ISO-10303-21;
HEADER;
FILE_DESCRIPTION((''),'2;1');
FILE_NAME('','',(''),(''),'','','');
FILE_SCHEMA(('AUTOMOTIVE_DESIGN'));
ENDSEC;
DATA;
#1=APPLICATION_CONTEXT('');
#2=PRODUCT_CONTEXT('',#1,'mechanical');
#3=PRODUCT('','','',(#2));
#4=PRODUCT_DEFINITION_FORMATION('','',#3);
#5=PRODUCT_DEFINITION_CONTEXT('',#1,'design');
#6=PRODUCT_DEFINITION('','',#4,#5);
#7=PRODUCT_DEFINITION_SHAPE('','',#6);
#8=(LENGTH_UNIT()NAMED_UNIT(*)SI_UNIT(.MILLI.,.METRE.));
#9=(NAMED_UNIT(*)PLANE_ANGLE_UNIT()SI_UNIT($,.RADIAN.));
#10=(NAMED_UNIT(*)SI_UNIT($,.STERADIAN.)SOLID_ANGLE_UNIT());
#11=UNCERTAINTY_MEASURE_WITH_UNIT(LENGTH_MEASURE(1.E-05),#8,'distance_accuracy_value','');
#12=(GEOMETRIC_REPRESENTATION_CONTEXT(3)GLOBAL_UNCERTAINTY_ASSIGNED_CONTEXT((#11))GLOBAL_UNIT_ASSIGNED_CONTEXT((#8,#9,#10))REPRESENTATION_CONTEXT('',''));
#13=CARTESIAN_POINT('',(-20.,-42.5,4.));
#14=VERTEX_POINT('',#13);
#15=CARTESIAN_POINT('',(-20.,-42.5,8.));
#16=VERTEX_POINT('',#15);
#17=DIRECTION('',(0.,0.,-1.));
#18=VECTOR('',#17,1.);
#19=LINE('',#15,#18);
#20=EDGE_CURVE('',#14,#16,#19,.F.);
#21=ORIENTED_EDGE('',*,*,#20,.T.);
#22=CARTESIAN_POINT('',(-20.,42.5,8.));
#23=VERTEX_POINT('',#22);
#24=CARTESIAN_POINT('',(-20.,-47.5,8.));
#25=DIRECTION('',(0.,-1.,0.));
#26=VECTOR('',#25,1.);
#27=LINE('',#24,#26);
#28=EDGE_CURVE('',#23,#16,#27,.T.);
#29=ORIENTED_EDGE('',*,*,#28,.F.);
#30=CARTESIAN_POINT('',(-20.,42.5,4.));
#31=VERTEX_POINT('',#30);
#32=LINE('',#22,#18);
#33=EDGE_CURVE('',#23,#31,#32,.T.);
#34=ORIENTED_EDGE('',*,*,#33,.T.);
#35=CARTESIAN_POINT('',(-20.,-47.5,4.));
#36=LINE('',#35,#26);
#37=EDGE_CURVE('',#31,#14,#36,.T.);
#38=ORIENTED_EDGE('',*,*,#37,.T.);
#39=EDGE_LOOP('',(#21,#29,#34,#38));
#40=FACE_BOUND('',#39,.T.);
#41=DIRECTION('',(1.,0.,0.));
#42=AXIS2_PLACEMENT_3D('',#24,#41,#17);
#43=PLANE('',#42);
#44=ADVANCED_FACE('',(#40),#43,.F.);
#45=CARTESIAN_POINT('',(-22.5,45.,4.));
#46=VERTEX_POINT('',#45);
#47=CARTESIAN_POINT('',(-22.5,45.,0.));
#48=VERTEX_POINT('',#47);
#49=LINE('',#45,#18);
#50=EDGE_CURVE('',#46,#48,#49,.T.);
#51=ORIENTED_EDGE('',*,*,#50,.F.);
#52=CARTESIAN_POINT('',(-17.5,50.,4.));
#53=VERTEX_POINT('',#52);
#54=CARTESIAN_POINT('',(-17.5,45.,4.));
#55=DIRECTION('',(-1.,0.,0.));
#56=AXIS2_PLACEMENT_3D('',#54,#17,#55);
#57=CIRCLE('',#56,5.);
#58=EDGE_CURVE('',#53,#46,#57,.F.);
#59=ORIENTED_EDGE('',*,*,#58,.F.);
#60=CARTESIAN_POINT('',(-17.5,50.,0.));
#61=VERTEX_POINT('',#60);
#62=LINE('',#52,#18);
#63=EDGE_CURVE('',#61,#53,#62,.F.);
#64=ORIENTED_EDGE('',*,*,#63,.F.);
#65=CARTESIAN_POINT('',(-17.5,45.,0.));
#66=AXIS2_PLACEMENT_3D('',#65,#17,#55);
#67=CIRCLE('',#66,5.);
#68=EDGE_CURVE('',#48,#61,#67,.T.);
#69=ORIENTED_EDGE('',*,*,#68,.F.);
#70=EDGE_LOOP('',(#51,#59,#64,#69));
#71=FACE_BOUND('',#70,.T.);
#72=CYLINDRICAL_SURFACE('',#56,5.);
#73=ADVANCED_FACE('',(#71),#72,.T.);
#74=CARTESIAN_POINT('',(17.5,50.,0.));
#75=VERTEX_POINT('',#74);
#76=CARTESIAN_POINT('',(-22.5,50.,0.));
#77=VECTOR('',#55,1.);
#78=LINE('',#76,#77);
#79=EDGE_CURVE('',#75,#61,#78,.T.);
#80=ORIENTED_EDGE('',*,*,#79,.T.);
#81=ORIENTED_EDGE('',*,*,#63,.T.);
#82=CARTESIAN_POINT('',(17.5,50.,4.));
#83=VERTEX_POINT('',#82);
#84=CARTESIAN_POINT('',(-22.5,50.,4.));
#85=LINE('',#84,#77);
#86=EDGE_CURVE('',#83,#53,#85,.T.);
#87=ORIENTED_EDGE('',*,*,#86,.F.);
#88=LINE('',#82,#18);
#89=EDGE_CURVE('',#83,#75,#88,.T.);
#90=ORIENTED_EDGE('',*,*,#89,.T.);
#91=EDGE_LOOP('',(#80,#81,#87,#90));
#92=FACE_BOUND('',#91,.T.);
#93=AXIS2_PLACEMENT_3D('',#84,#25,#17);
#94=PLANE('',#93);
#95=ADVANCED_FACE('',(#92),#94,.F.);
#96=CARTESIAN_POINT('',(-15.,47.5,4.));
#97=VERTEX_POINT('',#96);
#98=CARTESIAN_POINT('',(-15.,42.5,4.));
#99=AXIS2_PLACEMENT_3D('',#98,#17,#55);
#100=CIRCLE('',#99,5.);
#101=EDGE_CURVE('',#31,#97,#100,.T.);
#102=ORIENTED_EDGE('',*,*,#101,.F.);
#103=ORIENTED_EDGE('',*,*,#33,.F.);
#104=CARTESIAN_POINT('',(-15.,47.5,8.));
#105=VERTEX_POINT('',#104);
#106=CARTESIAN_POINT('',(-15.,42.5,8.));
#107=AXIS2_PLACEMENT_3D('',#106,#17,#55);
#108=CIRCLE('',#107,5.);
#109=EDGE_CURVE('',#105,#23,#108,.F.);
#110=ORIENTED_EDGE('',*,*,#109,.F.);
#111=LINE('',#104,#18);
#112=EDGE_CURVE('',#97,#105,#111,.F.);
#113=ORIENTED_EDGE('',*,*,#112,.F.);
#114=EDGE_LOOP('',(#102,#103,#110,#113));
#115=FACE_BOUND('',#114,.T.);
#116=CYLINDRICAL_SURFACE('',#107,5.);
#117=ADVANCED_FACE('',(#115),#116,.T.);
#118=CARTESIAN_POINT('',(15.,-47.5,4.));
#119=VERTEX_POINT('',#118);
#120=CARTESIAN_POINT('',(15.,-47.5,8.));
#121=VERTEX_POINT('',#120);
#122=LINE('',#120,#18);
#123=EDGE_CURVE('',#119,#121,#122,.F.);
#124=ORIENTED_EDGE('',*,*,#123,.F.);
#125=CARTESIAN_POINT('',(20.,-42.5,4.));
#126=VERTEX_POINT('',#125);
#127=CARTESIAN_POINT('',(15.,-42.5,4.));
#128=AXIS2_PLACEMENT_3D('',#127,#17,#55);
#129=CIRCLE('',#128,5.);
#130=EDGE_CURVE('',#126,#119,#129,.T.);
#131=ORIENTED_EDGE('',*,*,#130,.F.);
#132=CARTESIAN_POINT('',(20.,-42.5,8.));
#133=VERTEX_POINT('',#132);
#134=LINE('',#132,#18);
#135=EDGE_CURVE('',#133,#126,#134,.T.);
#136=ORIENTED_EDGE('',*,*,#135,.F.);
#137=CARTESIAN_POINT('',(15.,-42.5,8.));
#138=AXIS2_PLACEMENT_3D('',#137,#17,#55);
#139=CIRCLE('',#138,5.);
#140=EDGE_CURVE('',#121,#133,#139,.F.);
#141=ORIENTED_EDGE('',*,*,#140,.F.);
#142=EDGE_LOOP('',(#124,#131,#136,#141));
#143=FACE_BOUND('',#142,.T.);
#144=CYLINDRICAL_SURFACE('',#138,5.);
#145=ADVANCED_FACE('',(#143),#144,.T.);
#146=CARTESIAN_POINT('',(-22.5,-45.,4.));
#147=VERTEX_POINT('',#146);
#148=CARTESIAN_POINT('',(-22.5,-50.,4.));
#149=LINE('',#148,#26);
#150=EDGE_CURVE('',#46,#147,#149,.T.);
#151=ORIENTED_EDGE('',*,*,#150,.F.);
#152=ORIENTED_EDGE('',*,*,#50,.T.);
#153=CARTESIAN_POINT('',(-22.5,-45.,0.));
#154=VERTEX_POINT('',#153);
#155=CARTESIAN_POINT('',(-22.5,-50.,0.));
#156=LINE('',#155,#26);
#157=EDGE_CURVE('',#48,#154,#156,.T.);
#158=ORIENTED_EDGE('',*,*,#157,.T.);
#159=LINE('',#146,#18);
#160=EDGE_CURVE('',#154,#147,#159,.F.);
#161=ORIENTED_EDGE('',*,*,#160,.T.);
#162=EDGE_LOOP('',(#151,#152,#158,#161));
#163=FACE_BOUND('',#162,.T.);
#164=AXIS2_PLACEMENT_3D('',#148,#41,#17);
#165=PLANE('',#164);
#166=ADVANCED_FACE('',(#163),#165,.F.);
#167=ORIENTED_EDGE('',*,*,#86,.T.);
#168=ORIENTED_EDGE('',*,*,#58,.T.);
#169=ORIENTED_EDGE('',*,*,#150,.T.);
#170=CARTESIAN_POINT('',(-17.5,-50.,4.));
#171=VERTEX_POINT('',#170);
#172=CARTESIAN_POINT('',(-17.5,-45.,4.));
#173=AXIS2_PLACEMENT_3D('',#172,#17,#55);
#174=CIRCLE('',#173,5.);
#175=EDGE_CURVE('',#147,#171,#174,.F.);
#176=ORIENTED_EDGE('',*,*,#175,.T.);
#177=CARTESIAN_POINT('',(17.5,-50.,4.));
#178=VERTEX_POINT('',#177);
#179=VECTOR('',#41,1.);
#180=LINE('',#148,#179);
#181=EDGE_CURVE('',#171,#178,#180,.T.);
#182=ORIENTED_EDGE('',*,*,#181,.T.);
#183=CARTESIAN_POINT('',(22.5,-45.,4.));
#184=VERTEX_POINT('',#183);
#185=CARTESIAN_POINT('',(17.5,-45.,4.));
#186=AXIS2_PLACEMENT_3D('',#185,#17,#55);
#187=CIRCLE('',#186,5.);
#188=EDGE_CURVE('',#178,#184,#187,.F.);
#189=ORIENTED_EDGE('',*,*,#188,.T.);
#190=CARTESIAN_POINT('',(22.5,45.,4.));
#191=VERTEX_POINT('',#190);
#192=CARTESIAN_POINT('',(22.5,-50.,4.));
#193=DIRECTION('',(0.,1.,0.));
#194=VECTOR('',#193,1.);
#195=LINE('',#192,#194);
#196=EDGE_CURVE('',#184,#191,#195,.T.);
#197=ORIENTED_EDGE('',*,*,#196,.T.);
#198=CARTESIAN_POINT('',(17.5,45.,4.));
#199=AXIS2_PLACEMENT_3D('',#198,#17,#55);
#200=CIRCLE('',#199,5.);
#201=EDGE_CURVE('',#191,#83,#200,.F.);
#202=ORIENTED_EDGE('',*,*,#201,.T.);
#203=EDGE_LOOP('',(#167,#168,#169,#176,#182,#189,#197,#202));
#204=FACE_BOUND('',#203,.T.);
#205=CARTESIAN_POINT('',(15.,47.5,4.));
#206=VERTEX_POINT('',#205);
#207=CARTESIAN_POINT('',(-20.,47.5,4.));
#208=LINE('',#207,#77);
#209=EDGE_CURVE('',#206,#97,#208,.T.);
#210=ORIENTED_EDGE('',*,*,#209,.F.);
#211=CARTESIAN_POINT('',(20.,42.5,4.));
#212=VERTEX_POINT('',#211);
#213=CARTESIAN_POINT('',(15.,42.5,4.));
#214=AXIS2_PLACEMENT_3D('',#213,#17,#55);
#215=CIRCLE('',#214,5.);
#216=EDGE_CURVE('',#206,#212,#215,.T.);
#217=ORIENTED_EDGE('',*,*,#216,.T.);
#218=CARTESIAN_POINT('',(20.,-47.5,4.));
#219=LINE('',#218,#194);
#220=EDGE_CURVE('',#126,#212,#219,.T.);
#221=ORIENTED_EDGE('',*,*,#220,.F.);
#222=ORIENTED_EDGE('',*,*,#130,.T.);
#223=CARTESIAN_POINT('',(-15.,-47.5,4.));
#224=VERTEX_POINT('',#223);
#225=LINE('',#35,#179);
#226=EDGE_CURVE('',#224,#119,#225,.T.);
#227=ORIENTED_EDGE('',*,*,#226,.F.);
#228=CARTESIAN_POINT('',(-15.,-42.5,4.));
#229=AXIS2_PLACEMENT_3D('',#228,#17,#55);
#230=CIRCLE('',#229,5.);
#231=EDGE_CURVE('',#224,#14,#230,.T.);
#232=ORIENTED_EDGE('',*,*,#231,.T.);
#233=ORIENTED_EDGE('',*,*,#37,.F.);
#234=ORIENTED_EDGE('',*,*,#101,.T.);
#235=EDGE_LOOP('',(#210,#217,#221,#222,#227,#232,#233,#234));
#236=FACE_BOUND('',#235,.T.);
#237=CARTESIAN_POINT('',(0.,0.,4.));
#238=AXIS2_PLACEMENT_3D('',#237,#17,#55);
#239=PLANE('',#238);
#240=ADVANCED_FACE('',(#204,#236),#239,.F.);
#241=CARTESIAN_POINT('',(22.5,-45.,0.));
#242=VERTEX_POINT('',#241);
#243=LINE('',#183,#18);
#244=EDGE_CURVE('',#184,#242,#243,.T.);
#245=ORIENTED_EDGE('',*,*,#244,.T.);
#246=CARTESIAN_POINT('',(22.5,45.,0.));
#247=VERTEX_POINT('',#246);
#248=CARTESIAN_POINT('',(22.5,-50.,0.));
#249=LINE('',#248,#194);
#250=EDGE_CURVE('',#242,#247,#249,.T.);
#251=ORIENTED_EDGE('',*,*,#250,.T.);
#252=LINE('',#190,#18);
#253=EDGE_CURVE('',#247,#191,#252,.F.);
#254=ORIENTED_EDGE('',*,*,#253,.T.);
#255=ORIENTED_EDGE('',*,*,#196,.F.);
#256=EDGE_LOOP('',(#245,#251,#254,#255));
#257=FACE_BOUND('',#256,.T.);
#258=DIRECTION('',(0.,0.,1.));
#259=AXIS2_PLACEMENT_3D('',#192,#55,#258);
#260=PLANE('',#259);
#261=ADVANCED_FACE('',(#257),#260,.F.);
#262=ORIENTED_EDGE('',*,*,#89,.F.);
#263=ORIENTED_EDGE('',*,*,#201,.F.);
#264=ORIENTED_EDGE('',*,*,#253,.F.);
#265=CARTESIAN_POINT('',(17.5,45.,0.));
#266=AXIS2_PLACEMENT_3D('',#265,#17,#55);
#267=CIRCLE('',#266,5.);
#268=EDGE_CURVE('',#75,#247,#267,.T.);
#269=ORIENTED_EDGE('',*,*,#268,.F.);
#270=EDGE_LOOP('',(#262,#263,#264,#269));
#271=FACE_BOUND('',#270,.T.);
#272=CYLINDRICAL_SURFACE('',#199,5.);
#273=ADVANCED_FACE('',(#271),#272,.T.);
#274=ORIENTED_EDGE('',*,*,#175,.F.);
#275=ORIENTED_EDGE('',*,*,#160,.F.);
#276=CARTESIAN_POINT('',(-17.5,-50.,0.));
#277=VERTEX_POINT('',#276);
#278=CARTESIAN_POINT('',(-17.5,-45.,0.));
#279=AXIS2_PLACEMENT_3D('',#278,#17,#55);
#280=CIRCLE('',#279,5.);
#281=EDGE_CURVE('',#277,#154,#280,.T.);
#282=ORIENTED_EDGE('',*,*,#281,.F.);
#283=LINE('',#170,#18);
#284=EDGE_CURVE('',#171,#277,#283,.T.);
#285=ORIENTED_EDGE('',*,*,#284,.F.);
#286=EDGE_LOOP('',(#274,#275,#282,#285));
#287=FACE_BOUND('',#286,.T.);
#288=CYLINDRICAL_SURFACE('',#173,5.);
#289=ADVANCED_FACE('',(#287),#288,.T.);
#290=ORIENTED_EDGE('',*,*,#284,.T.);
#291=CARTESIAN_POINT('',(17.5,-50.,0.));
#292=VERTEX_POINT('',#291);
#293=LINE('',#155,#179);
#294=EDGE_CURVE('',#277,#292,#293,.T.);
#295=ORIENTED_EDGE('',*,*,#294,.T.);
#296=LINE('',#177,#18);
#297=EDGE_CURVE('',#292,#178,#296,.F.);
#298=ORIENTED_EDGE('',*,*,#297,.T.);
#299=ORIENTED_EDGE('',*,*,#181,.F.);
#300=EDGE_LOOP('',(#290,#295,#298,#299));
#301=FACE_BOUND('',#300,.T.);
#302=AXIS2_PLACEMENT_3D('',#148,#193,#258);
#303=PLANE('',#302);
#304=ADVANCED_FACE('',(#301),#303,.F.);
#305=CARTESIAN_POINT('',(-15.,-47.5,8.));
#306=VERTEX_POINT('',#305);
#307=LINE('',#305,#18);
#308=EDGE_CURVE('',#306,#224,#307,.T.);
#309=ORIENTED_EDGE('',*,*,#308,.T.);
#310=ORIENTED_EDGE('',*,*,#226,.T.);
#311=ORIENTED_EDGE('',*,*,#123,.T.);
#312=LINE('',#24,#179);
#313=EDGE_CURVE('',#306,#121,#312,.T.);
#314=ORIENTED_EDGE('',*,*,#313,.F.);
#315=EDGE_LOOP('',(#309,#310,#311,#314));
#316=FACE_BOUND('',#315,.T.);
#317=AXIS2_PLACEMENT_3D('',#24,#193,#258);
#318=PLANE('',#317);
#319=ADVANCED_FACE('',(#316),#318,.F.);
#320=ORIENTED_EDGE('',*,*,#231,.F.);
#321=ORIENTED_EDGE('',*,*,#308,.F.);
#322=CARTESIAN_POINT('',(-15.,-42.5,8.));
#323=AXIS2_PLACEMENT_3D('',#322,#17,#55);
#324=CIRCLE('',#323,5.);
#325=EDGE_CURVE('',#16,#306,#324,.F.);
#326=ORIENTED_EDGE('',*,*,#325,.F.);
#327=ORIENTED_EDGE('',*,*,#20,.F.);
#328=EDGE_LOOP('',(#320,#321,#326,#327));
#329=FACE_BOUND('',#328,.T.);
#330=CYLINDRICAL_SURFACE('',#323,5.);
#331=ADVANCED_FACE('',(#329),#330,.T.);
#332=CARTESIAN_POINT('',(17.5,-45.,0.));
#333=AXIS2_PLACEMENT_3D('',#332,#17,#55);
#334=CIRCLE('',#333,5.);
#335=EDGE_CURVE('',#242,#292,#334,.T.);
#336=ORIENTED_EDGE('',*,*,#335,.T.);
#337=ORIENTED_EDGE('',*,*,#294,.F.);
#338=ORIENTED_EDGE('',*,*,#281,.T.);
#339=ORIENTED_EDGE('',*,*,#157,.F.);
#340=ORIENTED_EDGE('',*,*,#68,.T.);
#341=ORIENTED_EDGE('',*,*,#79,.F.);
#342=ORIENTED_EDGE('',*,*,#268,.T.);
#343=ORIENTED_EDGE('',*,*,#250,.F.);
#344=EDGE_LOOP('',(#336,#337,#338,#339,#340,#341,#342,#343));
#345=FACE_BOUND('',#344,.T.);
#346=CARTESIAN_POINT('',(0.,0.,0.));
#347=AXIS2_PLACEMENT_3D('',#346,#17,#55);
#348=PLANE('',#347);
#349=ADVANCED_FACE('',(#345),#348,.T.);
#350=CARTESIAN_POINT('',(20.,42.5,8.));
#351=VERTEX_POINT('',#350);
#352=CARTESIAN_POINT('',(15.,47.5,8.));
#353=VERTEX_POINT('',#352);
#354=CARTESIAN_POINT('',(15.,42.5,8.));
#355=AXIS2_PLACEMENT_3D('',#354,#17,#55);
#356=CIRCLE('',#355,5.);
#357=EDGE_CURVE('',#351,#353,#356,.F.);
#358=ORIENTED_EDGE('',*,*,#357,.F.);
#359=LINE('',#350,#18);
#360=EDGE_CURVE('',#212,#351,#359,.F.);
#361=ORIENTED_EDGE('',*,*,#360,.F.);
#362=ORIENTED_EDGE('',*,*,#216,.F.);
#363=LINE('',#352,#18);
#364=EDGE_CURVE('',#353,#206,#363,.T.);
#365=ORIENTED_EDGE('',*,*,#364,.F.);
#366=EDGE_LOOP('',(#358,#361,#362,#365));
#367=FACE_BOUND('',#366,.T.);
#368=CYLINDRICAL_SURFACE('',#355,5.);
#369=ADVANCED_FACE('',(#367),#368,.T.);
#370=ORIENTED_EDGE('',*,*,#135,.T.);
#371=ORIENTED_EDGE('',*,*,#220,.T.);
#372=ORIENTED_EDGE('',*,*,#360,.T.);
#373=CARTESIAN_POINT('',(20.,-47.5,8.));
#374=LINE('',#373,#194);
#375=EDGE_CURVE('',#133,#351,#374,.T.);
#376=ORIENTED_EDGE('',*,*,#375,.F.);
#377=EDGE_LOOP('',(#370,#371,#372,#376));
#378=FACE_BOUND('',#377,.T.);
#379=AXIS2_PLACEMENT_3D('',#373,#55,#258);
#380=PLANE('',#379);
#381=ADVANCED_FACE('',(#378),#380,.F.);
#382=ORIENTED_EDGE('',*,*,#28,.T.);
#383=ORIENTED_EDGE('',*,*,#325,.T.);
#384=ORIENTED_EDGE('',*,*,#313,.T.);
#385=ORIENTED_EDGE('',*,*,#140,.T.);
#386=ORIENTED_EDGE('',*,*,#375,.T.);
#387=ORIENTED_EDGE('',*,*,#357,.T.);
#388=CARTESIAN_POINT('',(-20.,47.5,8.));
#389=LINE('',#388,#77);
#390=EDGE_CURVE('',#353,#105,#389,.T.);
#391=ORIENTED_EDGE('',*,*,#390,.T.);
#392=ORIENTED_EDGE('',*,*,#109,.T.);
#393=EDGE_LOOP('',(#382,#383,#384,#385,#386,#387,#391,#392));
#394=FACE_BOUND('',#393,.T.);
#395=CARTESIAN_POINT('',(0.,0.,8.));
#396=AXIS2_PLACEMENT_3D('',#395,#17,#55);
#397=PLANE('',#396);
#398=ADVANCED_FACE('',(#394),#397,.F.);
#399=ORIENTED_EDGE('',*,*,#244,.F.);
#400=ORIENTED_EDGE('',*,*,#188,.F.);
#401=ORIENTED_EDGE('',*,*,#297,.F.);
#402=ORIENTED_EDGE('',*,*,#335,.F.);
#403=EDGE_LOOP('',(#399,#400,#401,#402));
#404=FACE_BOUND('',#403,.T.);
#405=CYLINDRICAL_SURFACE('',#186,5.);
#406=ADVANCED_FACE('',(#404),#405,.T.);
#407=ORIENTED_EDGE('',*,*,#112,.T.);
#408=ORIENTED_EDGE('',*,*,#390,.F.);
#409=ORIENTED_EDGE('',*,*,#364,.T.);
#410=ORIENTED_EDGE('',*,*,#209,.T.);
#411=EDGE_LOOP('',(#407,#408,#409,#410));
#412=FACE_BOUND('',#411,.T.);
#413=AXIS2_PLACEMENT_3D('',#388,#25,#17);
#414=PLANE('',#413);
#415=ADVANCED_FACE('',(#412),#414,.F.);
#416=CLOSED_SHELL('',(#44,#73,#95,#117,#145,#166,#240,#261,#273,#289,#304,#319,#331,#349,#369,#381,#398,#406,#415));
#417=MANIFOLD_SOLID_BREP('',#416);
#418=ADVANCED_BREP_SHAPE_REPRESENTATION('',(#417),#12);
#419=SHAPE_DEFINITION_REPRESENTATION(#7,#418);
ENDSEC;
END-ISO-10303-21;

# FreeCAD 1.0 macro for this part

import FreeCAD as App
import Part
import Sketcher

V = App.Vector
Q = App.Units.Quantity


def edges_at(feature, points):
    """Names of the edges that pass closest to the given points."""
    edges = feature.Shape.Edges
    near = lambda p: min(range(len(edges)), key=lambda i: edges[i].distToShape(Part.Vertex(*p))[0])
    return sorted({f"Edge{near(p) + 1}" for p in points})

doc = App.newDocument("Part")
body = doc.addObject("PartDesign::Body", "Body")

sketch1 = body.newObject("Sketcher::SketchObject", "Sketch")
sketch1.AttachmentSupport = (doc.getObject("XY_Plane"), [""])
sketch1.MapMode = "FlatFace"
sketch1.addGeometry(Part.LineSegment(V(-22.5, 50, 0), V(-22.5, -50, 0)), False)
sketch1.addGeometry(Part.LineSegment(V(-22.5, -50, 0), V(22.5, -50, 0)), False)
sketch1.addGeometry(Part.LineSegment(V(22.5, -50, 0), V(22.5, 50, 0)), False)
sketch1.addGeometry(Part.LineSegment(V(22.5, 50, 0), V(-22.5, 50, 0)), False)
sketch1.addConstraint(Sketcher.Constraint("Coincident", 0, 2, 1, 1))
sketch1.addConstraint(Sketcher.Constraint("Coincident", 1, 2, 2, 1))
sketch1.addConstraint(Sketcher.Constraint("Coincident", 2, 2, 3, 1))
sketch1.addConstraint(Sketcher.Constraint("Coincident", 3, 2, 0, 1))
sketch1.addConstraint(Sketcher.Constraint("Vertical", 0))
sketch1.addConstraint(Sketcher.Constraint("Horizontal", 1))
sketch1.addConstraint(Sketcher.Constraint("Vertical", 2))
sketch1.addConstraint(Sketcher.Constraint("Horizontal", 3))
sketch1.addConstraint(Sketcher.Constraint("Symmetric", 0, 2, 2, 2, -1, 1))
sketch1.addConstraint(Sketcher.Constraint("DistanceX", 1, 1, 1, 2, Q("45 mm")))
sketch1.addConstraint(Sketcher.Constraint("DistanceY", 0, 2, 0, 1, Q("100 mm")))
pad1 = body.newObject("PartDesign::Pad", "Pad")
pad1.Profile = sketch1
pad1.Length = 4

sketch2 = body.newObject("Sketcher::SketchObject", "Sketch001")
sketch2.AttachmentSupport = (doc.getObject("XY_Plane"), [""])
sketch2.MapMode = "FlatFace"
sketch2.AttachmentOffset = App.Placement(V(0, 0, 4), App.Rotation())
sketch2.addGeometry(Part.LineSegment(V(-20, 47.5, 0), V(-20, -47.5, 0)), False)
sketch2.addGeometry(Part.LineSegment(V(-20, -47.5, 0), V(20, -47.5, 0)), False)
sketch2.addGeometry(Part.LineSegment(V(20, -47.5, 0), V(20, 47.5, 0)), False)
sketch2.addGeometry(Part.LineSegment(V(20, 47.5, 0), V(-20, 47.5, 0)), False)
sketch2.addConstraint(Sketcher.Constraint("Coincident", 0, 2, 1, 1))
sketch2.addConstraint(Sketcher.Constraint("Coincident", 1, 2, 2, 1))
sketch2.addConstraint(Sketcher.Constraint("Coincident", 2, 2, 3, 1))
sketch2.addConstraint(Sketcher.Constraint("Coincident", 3, 2, 0, 1))
sketch2.addConstraint(Sketcher.Constraint("Vertical", 0))
sketch2.addConstraint(Sketcher.Constraint("Horizontal", 1))
sketch2.addConstraint(Sketcher.Constraint("Vertical", 2))
sketch2.addConstraint(Sketcher.Constraint("Horizontal", 3))
sketch2.addConstraint(Sketcher.Constraint("Symmetric", 0, 2, 2, 2, -1, 1))
sketch2.addConstraint(Sketcher.Constraint("DistanceX", 1, 1, 1, 2, Q("40 mm")))
sketch2.addConstraint(Sketcher.Constraint("DistanceY", 0, 2, 0, 1, Q("95 mm")))
pad2 = body.newObject("PartDesign::Pad", "Pad001")
pad2.Profile = sketch2
pad2.Length = 4
doc.recompute()

fillet = body.newObject("PartDesign::Fillet", "Fillet")
fillet.Base = (pad2, edges_at(pad2, [
    (20, -47.5, 6),
    (20, 47.5, 6),
    (-20, 47.5, 6),
    (-20, -47.5, 6),
    (22.5, -50, 2),
    (-22.5, -50, 2),
    (-22.5, 50, 2),
    (22.5, 50, 2),
]))
fillet.Radius = 5

doc.recompute()
